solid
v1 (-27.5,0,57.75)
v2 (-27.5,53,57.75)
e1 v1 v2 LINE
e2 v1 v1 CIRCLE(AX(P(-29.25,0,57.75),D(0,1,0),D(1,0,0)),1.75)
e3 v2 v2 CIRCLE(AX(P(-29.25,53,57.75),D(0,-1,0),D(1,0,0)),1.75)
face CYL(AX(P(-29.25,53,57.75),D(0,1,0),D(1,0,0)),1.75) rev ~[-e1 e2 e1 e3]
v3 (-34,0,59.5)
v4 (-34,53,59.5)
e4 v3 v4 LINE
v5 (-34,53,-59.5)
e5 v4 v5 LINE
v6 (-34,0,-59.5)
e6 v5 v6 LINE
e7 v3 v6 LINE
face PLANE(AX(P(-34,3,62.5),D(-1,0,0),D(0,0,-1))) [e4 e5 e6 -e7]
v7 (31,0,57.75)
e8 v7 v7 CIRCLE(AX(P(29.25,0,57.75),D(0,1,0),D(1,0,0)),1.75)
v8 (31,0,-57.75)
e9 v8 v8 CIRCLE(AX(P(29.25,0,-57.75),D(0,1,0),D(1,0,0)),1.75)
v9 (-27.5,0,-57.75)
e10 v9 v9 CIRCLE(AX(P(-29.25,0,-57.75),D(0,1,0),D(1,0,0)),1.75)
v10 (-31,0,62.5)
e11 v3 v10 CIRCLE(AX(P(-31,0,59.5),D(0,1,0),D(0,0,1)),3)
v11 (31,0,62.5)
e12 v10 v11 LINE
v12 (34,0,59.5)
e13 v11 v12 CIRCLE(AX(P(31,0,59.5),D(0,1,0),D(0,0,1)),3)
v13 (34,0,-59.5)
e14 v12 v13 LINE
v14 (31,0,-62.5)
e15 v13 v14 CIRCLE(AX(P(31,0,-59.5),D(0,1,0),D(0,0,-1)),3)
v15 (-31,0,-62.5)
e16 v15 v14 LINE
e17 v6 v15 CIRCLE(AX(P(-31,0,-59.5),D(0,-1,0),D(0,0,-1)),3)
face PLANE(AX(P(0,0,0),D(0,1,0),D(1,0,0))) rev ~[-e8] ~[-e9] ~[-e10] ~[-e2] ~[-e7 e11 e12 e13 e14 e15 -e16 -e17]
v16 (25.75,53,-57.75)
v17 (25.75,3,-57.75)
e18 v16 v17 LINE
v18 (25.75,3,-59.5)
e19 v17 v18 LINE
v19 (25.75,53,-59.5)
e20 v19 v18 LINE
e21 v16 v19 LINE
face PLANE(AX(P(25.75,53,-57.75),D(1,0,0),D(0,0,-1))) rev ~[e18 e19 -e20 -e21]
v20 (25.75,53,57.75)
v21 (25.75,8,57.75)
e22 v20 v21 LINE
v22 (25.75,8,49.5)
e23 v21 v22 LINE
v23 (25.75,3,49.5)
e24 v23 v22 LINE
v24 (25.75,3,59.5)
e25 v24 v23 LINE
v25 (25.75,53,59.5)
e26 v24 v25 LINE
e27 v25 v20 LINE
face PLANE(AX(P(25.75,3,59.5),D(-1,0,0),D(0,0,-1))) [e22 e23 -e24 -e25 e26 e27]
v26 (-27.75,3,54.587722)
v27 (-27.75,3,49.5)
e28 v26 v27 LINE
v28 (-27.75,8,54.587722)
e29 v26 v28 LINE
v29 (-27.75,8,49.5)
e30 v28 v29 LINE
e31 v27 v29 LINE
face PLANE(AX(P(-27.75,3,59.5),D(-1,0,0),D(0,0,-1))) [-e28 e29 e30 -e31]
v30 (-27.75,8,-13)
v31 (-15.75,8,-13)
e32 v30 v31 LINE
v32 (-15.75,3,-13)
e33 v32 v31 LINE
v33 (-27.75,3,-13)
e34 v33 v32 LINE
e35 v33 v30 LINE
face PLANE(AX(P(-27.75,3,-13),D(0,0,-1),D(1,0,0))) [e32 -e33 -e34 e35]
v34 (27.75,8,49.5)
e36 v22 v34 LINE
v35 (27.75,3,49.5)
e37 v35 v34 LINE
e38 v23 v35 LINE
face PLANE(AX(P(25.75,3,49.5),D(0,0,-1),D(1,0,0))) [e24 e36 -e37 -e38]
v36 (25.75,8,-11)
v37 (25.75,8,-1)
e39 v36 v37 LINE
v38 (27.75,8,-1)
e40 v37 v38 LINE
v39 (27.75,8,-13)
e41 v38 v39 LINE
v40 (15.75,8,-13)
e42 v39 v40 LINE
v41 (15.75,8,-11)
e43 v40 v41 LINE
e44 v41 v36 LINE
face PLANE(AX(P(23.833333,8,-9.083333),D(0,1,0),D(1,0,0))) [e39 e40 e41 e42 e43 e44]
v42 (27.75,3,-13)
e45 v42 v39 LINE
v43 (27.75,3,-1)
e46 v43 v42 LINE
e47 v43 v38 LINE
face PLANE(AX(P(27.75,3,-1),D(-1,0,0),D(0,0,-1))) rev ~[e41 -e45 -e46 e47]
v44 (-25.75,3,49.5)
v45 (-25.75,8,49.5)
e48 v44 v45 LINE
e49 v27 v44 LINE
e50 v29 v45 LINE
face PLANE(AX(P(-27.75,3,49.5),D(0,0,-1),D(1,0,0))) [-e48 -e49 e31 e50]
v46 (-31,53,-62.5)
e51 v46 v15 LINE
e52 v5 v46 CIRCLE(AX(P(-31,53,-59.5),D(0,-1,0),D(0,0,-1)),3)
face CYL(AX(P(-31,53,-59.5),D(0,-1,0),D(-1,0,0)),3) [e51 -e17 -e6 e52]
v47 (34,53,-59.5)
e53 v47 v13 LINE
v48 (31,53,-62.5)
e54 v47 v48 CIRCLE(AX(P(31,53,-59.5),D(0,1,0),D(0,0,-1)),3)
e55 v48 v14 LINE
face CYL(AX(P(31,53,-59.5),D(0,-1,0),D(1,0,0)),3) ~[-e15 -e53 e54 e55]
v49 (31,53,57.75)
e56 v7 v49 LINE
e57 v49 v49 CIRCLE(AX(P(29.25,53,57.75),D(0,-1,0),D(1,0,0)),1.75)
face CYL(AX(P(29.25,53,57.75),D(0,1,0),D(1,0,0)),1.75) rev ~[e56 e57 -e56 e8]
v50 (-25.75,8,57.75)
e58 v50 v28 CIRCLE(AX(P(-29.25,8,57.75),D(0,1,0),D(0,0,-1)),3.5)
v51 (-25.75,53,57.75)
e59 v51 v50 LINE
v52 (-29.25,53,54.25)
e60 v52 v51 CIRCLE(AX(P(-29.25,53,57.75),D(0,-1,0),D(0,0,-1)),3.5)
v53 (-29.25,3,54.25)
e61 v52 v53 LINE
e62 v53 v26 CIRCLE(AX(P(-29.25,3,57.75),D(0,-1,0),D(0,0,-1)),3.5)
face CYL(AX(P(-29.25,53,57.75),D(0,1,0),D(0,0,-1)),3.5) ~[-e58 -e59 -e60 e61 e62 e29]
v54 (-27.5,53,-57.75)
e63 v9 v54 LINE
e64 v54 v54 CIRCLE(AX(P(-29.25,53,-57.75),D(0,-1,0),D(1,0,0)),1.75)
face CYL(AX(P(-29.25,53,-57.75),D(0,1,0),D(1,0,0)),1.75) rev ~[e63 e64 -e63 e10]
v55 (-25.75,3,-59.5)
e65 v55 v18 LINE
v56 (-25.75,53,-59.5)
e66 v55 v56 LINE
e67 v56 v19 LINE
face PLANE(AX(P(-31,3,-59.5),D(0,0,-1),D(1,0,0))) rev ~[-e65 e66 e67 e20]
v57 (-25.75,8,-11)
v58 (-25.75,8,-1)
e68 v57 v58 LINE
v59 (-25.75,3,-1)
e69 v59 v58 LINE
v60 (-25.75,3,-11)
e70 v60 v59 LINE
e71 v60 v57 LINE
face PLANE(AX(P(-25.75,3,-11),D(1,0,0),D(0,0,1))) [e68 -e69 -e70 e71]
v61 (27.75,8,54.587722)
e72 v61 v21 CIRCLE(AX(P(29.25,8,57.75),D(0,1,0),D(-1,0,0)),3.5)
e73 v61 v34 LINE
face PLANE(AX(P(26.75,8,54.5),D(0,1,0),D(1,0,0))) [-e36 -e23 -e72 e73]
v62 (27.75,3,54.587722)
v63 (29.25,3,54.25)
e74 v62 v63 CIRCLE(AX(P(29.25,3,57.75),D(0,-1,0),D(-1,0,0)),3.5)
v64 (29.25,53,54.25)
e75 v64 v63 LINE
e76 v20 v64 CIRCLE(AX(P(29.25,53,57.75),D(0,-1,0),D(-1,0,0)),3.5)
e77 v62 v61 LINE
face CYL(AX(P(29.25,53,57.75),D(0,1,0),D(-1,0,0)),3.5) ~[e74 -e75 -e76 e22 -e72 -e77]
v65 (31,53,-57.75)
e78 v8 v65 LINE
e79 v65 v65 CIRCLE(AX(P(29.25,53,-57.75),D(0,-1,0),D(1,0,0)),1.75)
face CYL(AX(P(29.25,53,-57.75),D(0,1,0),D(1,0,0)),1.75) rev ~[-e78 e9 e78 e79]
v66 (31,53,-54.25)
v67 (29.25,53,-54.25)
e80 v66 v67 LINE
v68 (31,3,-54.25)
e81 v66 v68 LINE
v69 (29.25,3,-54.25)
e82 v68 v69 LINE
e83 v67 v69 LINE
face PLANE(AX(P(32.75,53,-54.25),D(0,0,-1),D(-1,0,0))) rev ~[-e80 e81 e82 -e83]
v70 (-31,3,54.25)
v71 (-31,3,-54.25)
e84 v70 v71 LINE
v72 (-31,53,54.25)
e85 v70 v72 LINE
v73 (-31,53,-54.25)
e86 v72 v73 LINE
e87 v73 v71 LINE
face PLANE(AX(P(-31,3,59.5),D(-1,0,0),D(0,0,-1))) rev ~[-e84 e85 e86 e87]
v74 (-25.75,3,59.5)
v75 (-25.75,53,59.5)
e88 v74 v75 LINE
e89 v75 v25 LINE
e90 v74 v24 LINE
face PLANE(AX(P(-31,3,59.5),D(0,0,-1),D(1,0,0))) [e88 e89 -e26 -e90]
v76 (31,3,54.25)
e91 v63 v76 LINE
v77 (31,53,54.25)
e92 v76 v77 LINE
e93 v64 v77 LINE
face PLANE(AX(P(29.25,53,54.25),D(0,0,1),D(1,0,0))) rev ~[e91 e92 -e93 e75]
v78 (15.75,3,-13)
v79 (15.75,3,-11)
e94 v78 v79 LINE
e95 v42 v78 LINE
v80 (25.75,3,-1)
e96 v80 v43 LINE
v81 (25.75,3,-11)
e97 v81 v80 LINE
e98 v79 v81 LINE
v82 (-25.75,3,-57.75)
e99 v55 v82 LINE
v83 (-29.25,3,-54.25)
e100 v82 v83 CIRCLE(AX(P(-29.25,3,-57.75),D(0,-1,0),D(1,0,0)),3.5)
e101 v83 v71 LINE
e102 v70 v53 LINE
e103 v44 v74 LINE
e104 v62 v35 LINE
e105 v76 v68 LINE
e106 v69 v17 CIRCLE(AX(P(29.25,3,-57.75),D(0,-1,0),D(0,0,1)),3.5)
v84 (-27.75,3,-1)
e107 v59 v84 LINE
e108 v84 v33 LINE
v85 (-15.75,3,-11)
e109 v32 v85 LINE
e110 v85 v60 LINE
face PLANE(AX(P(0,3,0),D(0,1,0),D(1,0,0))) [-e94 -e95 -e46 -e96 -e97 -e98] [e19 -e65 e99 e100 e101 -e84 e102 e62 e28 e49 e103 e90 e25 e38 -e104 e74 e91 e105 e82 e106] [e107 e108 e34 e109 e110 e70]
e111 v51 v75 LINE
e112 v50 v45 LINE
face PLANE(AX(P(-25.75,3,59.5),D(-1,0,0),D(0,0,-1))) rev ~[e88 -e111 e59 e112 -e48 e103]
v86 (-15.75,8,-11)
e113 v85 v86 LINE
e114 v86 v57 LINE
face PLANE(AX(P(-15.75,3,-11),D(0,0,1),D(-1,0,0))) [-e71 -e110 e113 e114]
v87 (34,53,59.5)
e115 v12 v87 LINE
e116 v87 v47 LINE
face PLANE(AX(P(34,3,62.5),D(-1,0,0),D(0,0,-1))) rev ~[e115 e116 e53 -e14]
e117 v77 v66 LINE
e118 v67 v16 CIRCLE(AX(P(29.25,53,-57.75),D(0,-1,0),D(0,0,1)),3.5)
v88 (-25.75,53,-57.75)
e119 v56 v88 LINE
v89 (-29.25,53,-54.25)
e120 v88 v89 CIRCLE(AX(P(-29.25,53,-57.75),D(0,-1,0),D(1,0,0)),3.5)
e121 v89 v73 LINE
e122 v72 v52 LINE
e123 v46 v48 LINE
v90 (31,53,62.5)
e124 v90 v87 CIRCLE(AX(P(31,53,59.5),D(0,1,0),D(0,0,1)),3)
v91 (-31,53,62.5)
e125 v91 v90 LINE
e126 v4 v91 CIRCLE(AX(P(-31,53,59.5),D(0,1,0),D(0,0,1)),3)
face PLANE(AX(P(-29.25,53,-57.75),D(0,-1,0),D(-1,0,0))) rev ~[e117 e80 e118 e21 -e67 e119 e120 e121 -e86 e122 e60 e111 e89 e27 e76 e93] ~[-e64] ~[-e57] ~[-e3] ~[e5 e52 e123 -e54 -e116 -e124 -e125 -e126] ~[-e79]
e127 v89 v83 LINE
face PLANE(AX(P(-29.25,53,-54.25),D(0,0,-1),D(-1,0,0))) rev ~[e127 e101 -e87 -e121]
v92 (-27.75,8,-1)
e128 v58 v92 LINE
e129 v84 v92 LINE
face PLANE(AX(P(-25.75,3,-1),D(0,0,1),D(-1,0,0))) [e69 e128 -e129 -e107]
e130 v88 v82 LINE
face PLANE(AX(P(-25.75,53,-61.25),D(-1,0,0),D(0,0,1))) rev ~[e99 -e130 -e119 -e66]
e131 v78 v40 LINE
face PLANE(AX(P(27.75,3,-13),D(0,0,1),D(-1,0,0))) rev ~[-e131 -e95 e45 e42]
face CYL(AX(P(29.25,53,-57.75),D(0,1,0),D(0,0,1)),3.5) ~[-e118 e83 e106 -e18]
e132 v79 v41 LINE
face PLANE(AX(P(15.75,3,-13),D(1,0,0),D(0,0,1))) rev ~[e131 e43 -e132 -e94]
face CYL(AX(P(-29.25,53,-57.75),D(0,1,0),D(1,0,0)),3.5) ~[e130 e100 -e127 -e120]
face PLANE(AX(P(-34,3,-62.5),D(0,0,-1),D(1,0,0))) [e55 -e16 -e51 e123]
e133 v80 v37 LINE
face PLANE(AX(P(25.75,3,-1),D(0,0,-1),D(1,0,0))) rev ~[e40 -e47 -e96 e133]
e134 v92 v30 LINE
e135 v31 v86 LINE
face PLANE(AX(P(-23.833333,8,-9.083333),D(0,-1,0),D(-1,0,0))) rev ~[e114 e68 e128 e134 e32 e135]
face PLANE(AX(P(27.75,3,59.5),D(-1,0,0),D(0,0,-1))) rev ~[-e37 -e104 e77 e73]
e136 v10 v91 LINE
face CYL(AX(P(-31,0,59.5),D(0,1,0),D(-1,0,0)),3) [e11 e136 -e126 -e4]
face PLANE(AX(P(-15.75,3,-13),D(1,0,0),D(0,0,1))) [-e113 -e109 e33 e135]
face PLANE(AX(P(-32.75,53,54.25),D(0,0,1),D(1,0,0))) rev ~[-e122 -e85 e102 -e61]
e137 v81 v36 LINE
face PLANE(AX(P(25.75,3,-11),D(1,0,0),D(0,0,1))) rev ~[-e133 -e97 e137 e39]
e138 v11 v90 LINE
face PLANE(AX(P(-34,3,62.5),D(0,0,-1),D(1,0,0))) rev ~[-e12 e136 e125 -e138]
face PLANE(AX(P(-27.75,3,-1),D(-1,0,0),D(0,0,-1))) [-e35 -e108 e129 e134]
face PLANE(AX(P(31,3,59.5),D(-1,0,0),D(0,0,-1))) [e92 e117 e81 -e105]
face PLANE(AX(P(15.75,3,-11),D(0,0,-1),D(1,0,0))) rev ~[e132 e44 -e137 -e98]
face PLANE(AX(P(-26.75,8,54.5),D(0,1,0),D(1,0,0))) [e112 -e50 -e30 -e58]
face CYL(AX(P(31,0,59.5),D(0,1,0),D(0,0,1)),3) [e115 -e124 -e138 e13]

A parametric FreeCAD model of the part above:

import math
import FreeCAD as App
import Part
import Sketcher

V = App.Vector
Q = App.Units.Quantity


def edges_at(feature, points):
    """Names of the edges that pass closest to the given points."""
    edges = feature.Shape.Edges
    near = lambda p: min(range(len(edges)), key=lambda i: edges[i].distToShape(Part.Vertex(*p))[0])
    return sorted({f"Edge{near(p) + 1}" for p in points})


def add_polygon(sketch, points):
    """Adds a closed chain of lines whose ends are joined by coincident constraints."""
    first, n = sketch.GeometryCount, len(points)
    for a, b in zip(points, points[1:] + points[:1]):
        sketch.addGeometry(Part.LineSegment(App.Vector(*a, 0), App.Vector(*b, 0)), False)
    for i in range(n):
        sketch.addConstraint(Sketcher.Constraint("Coincident", first + i, 2, first + (i + 1) % n, 1))

doc = App.newDocument("Part")
body = doc.addObject("PartDesign::Body", "Body")

sketch1 = doc.addObject("Sketcher::SketchObject", "Sketch")
body.addObject(sketch1)
sketch1.AttachmentSupport = (doc.XZ_Plane, [""])
sketch1.MapMode = "FlatFace"
add_polygon(sketch1, [(-34, -62), (-34, 62), (34, 62), (34, -62)])
sketch1.addConstraint([
    Sketcher.Constraint("Vertical", 0),
    Sketcher.Constraint("Horizontal", 1),
    Sketcher.Constraint("Vertical", 2),
    Sketcher.Constraint("Horizontal", 3),
    Sketcher.Constraint("Symmetric", 0, 2, 2, 2, -1, 1),
    Sketcher.Constraint("DistanceX", 1, 1, 1, 2, Q("68 mm")),
    Sketcher.Constraint("DistanceY", 0, 1, 0, 2, Q("125 mm")),
])
pad1 = doc.addObject("PartDesign::Pad", "Pad")
body.addObject(pad1)
pad1.Profile = sketch1
pad1.Length = 3
pad1.Reversed = True

sketch2 = doc.addObject("Sketcher::SketchObject", "Sketch001")
body.addObject(sketch2)
sketch2.AttachmentSupport = (doc.XZ_Plane, [""])
sketch2.MapMode = "FlatFace"
sketch2.AttachmentOffset = App.Placement(V(0, 0, -3), App.Rotation())
add_polygon(sketch2, [(-34, -62), (-34, 62), (34, 62), (34, -62)])
add_polygon(sketch2, [(31, 60), (-31, 60), (-31, -60), (31, -60)])
sketch2.addConstraint([
    Sketcher.Constraint("Vertical", 0),
    Sketcher.Constraint("Horizontal", 1),
    Sketcher.Constraint("Vertical", 2),
    Sketcher.Constraint("Horizontal", 3),
    Sketcher.Constraint("Horizontal", 4),
    Sketcher.Constraint("Vertical", 5),
    Sketcher.Constraint("Horizontal", 6),
    Sketcher.Constraint("Vertical", 7),
    Sketcher.Constraint("Symmetric", 0, 2, 2, 2, -1, 1),
    Sketcher.Constraint("Symmetric", 4, 2, 6, 2, -1, 1),
    Sketcher.Constraint("DistanceX", 1, 1, 1, 2, Q("68 mm")),
    Sketcher.Constraint("DistanceX", 4, 2, 4, 1, Q("62 mm")),
    Sketcher.Constraint("DistanceY", 0, 1, 0, 2, Q("125 mm")),
    Sketcher.Constraint("DistanceY", 5, 2, 5, 1, Q("119 mm")),
])
pad2 = doc.addObject("PartDesign::Pad", "Pad001")
body.addObject(pad2)
pad2.Profile = sketch2
pad2.Length = 50
pad2.Reversed = True
doc.recompute()

fillet = doc.addObject("PartDesign::Fillet", "Fillet")
body.addObject(fillet)
fillet.Base = (pad2, edges_at(pad2, [
    (-34, 26.5, -62.5),
    (34, 26.5, -62.5),
    (34, 26.5, 62.5),
    (-34, 26.5, 62.5),
]))
fillet.Radius = 3

sketch3 = doc.addObject("Sketcher::SketchObject", "Sketch002")
body.addObject(sketch3)
sketch3.AttachmentSupport = (doc.XZ_Plane, [""])
sketch3.MapMode = "FlatFace"
sketch3.AttachmentOffset = App.Placement(V(0, 0, -3), App.Rotation())
add_polygon(sketch3, [(15.8, -11), (25.8, -11), (25.8, -1), (27.8, -1), (27.8, -13), (15.8, -13)])
add_polygon(sketch3, [(25.8, 49.5), (25.8, 59.5), (27.8, 59.5), (27.8, 49.5)])
add_polygon(sketch3, [(-27.8, 49.5), (-27.8, 59.5), (-25.8, 59.5), (-25.8, 49.5)])
add_polygon(sketch3, [(-15.8, -13), (-27.8, -13), (-27.8, -1), (-25.8, -1), (-25.8, -11), (-15.8, -11)])
sketch3.addConstraint([
    Sketcher.Constraint("Horizontal", 0),
    Sketcher.Constraint("Vertical", 1),
    Sketcher.Constraint("Horizontal", 2),
    Sketcher.Constraint("Vertical", 3),
    Sketcher.Constraint("Horizontal", 4),
    Sketcher.Constraint("Vertical", 5),
    Sketcher.Constraint("Vertical", 6),
    Sketcher.Constraint("Horizontal", 7),
    Sketcher.Constraint("Vertical", 8),
    Sketcher.Constraint("Horizontal", 9),
    Sketcher.Constraint("Vertical", 10),
    Sketcher.Constraint("Horizontal", 11),
    Sketcher.Constraint("Vertical", 12),
    Sketcher.Constraint("Horizontal", 13),
    Sketcher.Constraint("Horizontal", 14),
    Sketcher.Constraint("Vertical", 15),
    Sketcher.Constraint("Horizontal", 16),
    Sketcher.Constraint("Vertical", 17),
    Sketcher.Constraint("Horizontal", 18),
    Sketcher.Constraint("Vertical", 19),
    Sketcher.Constraint("Symmetric", 7, 2, 10, 2, -2),
    Sketcher.Constraint("Symmetric", 9, 2, 12, 2, -2),
    Sketcher.Constraint("Symmetric", 3, 2, 14, 2, -2),
    Sketcher.Constraint("Symmetric", 1, 2, 16, 2, -2),
    Sketcher.Constraint("Symmetric", 5, 2, 18, 2, -2),
    Sketcher.Constraint("Vertical", 1, 2, 6, 2),
    Sketcher.Constraint("Vertical", 3, 2, 7, 2),
    Sketcher.Constraint("Equal", 18, 1),
    Sketcher.Constraint("Equal", 14, 3),
    Sketcher.Constraint("Equal", 1, 6),
    Sketcher.Constraint("DistanceX", 0, 1, 0, 2, Q("10 mm")),
    Sketcher.Constraint("DistanceX", 2, 1, 2, 2, Q("2 mm")),
    Sketcher.Constraint("DistanceY", 0, 2, -1, 1, Q("11 mm")),
    Sketcher.Constraint("DistanceY", -1, 1, 6, 2, Q("59.5 mm")),
    Sketcher.Constraint("DistanceX", 10, 2, 6, 2, Q("53.5 mm")),
])
pad3 = doc.addObject("PartDesign::Pad", "Pad002")
body.addObject(pad3)
pad3.Profile = sketch3
pad3.Length = 5
pad3.Reversed = True

sketch4 = doc.addObject("Sketcher::SketchObject", "Sketch003")
body.addObject(sketch4)
sketch4.AttachmentSupport = (doc.XZ_Plane, [""])
sketch4.MapMode = "FlatFace"
sketch4.AttachmentOffset = App.Placement(V(0, 0, -53), App.Rotation())
sketch4.addGeometry([
    Part.LineSegment(V(-32.8, -54.2, 0), V(-29.2, -54.2, 0)),
    Part.ArcOfCircle(Part.Circle(V(-29.3, -57.8, 0), V(0, 0, 1), 3.5), math.radians(0), math.radians(90)),
    Part.LineSegment(V(-25.8, -57.8, 0), V(-25.8, -61.2, 0)),
    Part.LineSegment(V(-25.8, -61.2, 0), V(-29.2, -61.2, 0)),
    Part.ArcOfCircle(Part.Circle(V(-29.2, -57.7, 0), V(0, 0, 1), 3.5), math.radians(-180), math.radians(-90)),
    Part.LineSegment(V(-32.8, -57.8, 0), V(-32.8, -54.2, 0)),
    Part.Circle(V(-29.2, -57.8, 0), V(0, 0, 1), 1.8),
    Part.LineSegment(V(29.2, -61.2, 0), V(25.8, -61.2, 0)),
    Part.LineSegment(V(25.8, -61.2, 0), V(25.8, -57.8, 0)),
    Part.ArcOfCircle(Part.Circle(V(29.3, -57.8, 0), V(0, 0, 1), 3.5), math.radians(90), math.radians(180)),
    Part.LineSegment(V(29.2, -54.2, 0), V(32.8, -54.2, 0)),
    Part.LineSegment(V(32.8, -54.2, 0), V(32.8, -57.8, 0)),
    Part.ArcOfCircle(Part.Circle(V(29.2, -57.7, 0), V(0, 0, 1), 3.5), math.radians(-90), math.radians(0)),
    Part.Circle(V(29.2, -57.8, 0), V(0, 0, 1), 1.8),
    Part.LineSegment(V(32.8, 54.2, 0), V(29.2, 54.2, 0)),
    Part.ArcOfCircle(Part.Circle(V(29.3, 57.8, 0), V(0, 0, 1), 3.5), math.radians(-180), math.radians(-90)),
    Part.LineSegment(V(25.8, 57.8, 0), V(25.8, 61.2, 0)),
    Part.LineSegment(V(25.8, 61.2, 0), V(29.2, 61.2, 0)),
    Part.ArcOfCircle(Part.Circle(V(29.2, 57.7, 0), V(0, 0, 1), 3.5), math.radians(0), math.radians(90)),
    Part.LineSegment(V(32.8, 57.8, 0), V(32.8, 54.2, 0)),
    Part.Circle(V(29.2, 57.8, 0), V(0, 0, 1), 1.8),
    Part.LineSegment(V(-29.2, 61.2, 0), V(-25.8, 61.2, 0)),
    Part.LineSegment(V(-25.8, 61.2, 0), V(-25.8, 57.8, 0)),
    Part.ArcOfCircle(Part.Circle(V(-29.3, 57.8, 0), V(0, 0, 1), 3.5), math.radians(-90), math.radians(0)),
    Part.LineSegment(V(-29.2, 54.2, 0), V(-32.8, 54.2, 0)),
    Part.LineSegment(V(-32.8, 54.2, 0), V(-32.8, 57.8, 0)),
    Part.ArcOfCircle(Part.Circle(V(-29.2, 57.7, 0), V(0, 0, 1), 3.5), math.radians(90), math.radians(180)),
    Part.Circle(V(-29.2, 57.8, 0), V(0, 0, 1), 1.8),
], False)
sketch4.addConstraint([
    Sketcher.Constraint("Tangent", 0, 2, 1, 2),
    Sketcher.Constraint("Tangent", 1, 1, 2, 1),
    Sketcher.Constraint("Coincident", 2, 2, 3, 1),
    Sketcher.Constraint("Tangent", 3, 2, 4, 2),
    Sketcher.Constraint("Tangent", 4, 1, 5, 1),
    Sketcher.Constraint("Coincident", 5, 2, 0, 1),
    Sketcher.Constraint("Coincident", 7, 2, 8, 1),
    Sketcher.Constraint("Tangent", 8, 2, 9, 2),
    Sketcher.Constraint("Tangent", 9, 1, 10, 1),
    Sketcher.Constraint("Coincident", 10, 2, 11, 1),
    Sketcher.Constraint("Tangent", 11, 2, 12, 2),
    Sketcher.Constraint("Tangent", 12, 1, 7, 1),
    Sketcher.Constraint("Tangent", 14, 2, 15, 2),
    Sketcher.Constraint("Tangent", 15, 1, 16, 1),
    Sketcher.Constraint("Coincident", 16, 2, 17, 1),
    Sketcher.Constraint("Tangent", 17, 2, 18, 2),
    Sketcher.Constraint("Tangent", 18, 1, 19, 1),
    Sketcher.Constraint("Coincident", 19, 2, 14, 1),
    Sketcher.Constraint("Coincident", 21, 2, 22, 1),
    Sketcher.Constraint("Tangent", 22, 2, 23, 2),
    Sketcher.Constraint("Tangent", 23, 1, 24, 1),
    Sketcher.Constraint("Coincident", 24, 2, 25, 1),
    Sketcher.Constraint("Tangent", 25, 2, 26, 2),
    Sketcher.Constraint("Tangent", 26, 1, 21, 1),
    Sketcher.Constraint("Horizontal", 0),
    Sketcher.Constraint("Vertical", 2),
    Sketcher.Constraint("Horizontal", 3),
    Sketcher.Constraint("Vertical", 5),
    Sketcher.Constraint("Horizontal", 7),
    Sketcher.Constraint("Vertical", 8),
    Sketcher.Constraint("Horizontal", 10),
    Sketcher.Constraint("Vertical", 11),
    Sketcher.Constraint("Horizontal", 14),
    Sketcher.Constraint("Vertical", 16),
    Sketcher.Constraint("Horizontal", 17),
    Sketcher.Constraint("Vertical", 19),
    Sketcher.Constraint("Horizontal", 21),
    Sketcher.Constraint("Vertical", 22),
    Sketcher.Constraint("Horizontal", 24),
    Sketcher.Constraint("Vertical", 25),
    Sketcher.Constraint("Coincident", 4, 3, 1, 3),
    Sketcher.Constraint("Coincident", 6, 3, 1, 3),
    Sketcher.Constraint("Coincident", 12, 3, 9, 3),
    Sketcher.Constraint("Coincident", 13, 3, 9, 3),
    Sketcher.Constraint("Coincident", 18, 3, 15, 3),
    Sketcher.Constraint("Coincident", 20, 3, 15, 3),
    Sketcher.Constraint("Coincident", 26, 3, 23, 3),
    Sketcher.Constraint("Coincident", 27, 3, 23, 3),
    Sketcher.Constraint("Equal", 1, 4),
    Sketcher.Constraint("Equal", 4, 9),
    Sketcher.Constraint("Equal", 9, 12),
    Sketcher.Constraint("Equal", 6, 13),
    Sketcher.Constraint("Equal", 12, 15),
    Sketcher.Constraint("Equal", 15, 18),
    Sketcher.Constraint("Equal", 13, 20),
    Sketcher.Constraint("Equal", 18, 23),
    Sketcher.Constraint("Equal", 23, 26),
    Sketcher.Constraint("Equal", 20, 27),
    Sketcher.Constraint("Symmetric", 1, 3, 15, 3, -1, 1),
    Sketcher.Constraint("Symmetric", 9, 3, 23, 3, -1, 1),
    Sketcher.Constraint("Symmetric", 1, 3, 9, 3, -2),
    Sketcher.Constraint("Diameter", 6, Q("3.5 mm")),
    Sketcher.Constraint("Radius", 1, Q("3.5 mm")),
    Sketcher.Constraint("DistanceX", 1, 1, 12, 3, Q("55 mm")),
    Sketcher.Constraint("DistanceY", 12, 3, 15, 3, Q("115.5 mm")),
])
pad4 = doc.addObject("PartDesign::Pad", "Pad003")
body.addObject(pad4)
pad4.Profile = sketch4
pad4.Length = 50

sketch5 = doc.addObject("Sketcher::SketchObject", "Sketch004")
body.addObject(sketch5)
sketch5.AttachmentSupport = (doc.XZ_Plane, [""])
sketch5.MapMode = "FlatFace"
sketch5.AttachmentOffset = App.Placement(V(0, 0, -53), App.Rotation())
sketch5.addGeometry([
    Part.Circle(V(-29.2, -57.8, 0), V(0, 0, 1), 1.8),
    Part.Circle(V(29.2, -57.8, 0), V(0, 0, 1), 1.8),
    Part.Circle(V(29.2, 57.8, 0), V(0, 0, 1), 1.8),
    Part.Circle(V(-29.2, 57.8, 0), V(0, 0, 1), 1.8),
], False)
sketch5.addConstraint([
    Sketcher.Constraint("Equal", 0, 1),
    Sketcher.Constraint("Equal", 1, 2),
    Sketcher.Constraint("Equal", 2, 3),
    Sketcher.Constraint("Symmetric", 0, 3, 2, 3, -1, 1),
    Sketcher.Constraint("Symmetric", 1, 3, 3, 3, -1, 1),
    Sketcher.Constraint("Symmetric", 0, 3, 1, 3, -2),
    Sketcher.Constraint("Diameter", 0, Q("3.5 mm")),
    Sketcher.Constraint("DistanceX", 0, 3, 1, 3, Q("58.5 mm")),
    Sketcher.Constraint("DistanceY", 1, 3, 2, 3, Q("115.5 mm")),
])
pocket1 = doc.addObject("PartDesign::Pocket", "Pocket")
body.addObject(pocket1)
pocket1.Profile = sketch5
pocket1.Type = "ThroughAll"
pocket1.Reversed = True

doc.recompute()
